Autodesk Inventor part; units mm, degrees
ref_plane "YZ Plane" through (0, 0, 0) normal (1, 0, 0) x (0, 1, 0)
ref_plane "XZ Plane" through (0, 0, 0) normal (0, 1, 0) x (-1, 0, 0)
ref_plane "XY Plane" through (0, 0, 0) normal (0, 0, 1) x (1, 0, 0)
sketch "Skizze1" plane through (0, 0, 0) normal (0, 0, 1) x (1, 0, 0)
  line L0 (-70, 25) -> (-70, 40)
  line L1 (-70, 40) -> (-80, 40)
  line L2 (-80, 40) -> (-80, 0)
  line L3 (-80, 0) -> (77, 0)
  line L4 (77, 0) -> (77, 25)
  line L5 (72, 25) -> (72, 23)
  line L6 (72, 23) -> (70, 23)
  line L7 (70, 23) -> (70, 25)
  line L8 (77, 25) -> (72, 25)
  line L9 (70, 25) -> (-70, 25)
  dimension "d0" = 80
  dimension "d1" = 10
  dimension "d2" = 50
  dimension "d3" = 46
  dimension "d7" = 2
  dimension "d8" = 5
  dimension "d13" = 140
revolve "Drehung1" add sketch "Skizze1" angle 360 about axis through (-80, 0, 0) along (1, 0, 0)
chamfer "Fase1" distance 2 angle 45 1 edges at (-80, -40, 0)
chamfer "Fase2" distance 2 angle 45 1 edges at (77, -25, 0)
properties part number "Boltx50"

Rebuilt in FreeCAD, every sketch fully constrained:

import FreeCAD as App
import Part
import Sketcher
from FreeCAD import Vector
Q = App.Units.Quantity


def edges_at(feature, points):
    """Names of the edges that pass closest to the given points."""
    edges = feature.Shape.Edges
    near = lambda p: min(range(len(edges)), key=lambda i: edges[i].distToShape(Part.Vertex(*p))[0])
    return sorted({f"Edge{near(p) + 1}" for p in points})

doc = App.newDocument("Part")
body = doc.addObject("PartDesign::Body", "Body")

sketch1 = body.newObject("Sketcher::SketchObject", "Sketch")
sketch1.AttachmentSupport = (doc.getObject("XY_Plane"), [""])
sketch1.MapMode = "FlatFace"
sketch1.addGeometry([
    Part.LineSegment(Vector(70, 25, 0), Vector(-70, 25, 0)),
    Part.LineSegment(Vector(-70, 25, 0), Vector(-70, 40, 0)),
    Part.LineSegment(Vector(-70, 40, 0), Vector(-80, 40, 0)),
    Part.LineSegment(Vector(-80, 40, 0), Vector(-80, 0, 0)),
    Part.LineSegment(Vector(-80, 0, 0), Vector(77, 0, 0)),
    Part.LineSegment(Vector(77, 0, 0), Vector(77, 25, 0)),
    Part.LineSegment(Vector(77, 25, 0), Vector(72, 25, 0)),
    Part.LineSegment(Vector(72, 25, 0), Vector(72, 23, 0)),
    Part.LineSegment(Vector(72, 23, 0), Vector(70, 23, 0)),
    Part.LineSegment(Vector(70, 23, 0), Vector(70, 25, 0)),
], False)
sketch1.addConstraint([
    Sketcher.Constraint("Coincident", 0, 2, 1, 1),
    Sketcher.Constraint("Coincident", 1, 2, 2, 1),
    Sketcher.Constraint("Coincident", 2, 2, 3, 1),
    Sketcher.Constraint("Coincident", 3, 2, 4, 1),
    Sketcher.Constraint("Coincident", 4, 2, 5, 1),
    Sketcher.Constraint("Coincident", 5, 2, 6, 1),
    Sketcher.Constraint("Coincident", 6, 2, 7, 1),
    Sketcher.Constraint("Coincident", 7, 2, 8, 1),
    Sketcher.Constraint("Coincident", 8, 2, 9, 1),
    Sketcher.Constraint("Coincident", 9, 2, 0, 1),
    Sketcher.Constraint("Horizontal", 0),
    Sketcher.Constraint("Vertical", 1),
    Sketcher.Constraint("Horizontal", 2),
    Sketcher.Constraint("Vertical", 3),
    Sketcher.Constraint("Horizontal", 4),
    Sketcher.Constraint("Vertical", 5),
    Sketcher.Constraint("Horizontal", 6),
    Sketcher.Constraint("Vertical", 7),
    Sketcher.Constraint("Horizontal", 8),
    Sketcher.Constraint("Vertical", 9),
    Sketcher.Constraint("PointOnObject", 3, 2, -1),
    Sketcher.Constraint("Horizontal", 0, 2, 5, 2),
    Sketcher.Constraint("Equal", 8, 7),
    Sketcher.Constraint("DistanceX", 0, 2, 0, 1, Q("140 mm")),
    Sketcher.Constraint("DistanceX", 2, 2, 2, 1, Q("10 mm")),
    Sketcher.Constraint("DistanceX", 6, 2, 6, 1, Q("5 mm")),
    Sketcher.Constraint("DistanceX", 8, 2, 8, 1, Q("2 mm")),
    Sketcher.Constraint("DistanceX", 2, 2, -1, 1, Q("80 mm")),
    Sketcher.Constraint("DistanceY", 1, 1, 1, 2, Q("15 mm")),
    Sketcher.Constraint("DistanceY", 3, 2, 3, 1, Q("40 mm")),
])
revolution = body.newObject("PartDesign::Revolution", "Revolution")
revolution.Profile = sketch1
revolution.ReferenceAxis = (sketch1, ["H_Axis"])
revolution.Angle = 360
doc.recompute()

chamfer = body.newObject("PartDesign::Chamfer", "Chamfer")
chamfer.Base = (revolution, edges_at(revolution, [(-80, -40, 0)]))
chamfer.Size = 2
doc.recompute()

chamfer2 = body.newObject("PartDesign::Chamfer", "Chamfer001")
chamfer2.Base = (chamfer, edges_at(chamfer, [(77, -25, 0)]))
chamfer2.Size = 2

doc.recompute()
